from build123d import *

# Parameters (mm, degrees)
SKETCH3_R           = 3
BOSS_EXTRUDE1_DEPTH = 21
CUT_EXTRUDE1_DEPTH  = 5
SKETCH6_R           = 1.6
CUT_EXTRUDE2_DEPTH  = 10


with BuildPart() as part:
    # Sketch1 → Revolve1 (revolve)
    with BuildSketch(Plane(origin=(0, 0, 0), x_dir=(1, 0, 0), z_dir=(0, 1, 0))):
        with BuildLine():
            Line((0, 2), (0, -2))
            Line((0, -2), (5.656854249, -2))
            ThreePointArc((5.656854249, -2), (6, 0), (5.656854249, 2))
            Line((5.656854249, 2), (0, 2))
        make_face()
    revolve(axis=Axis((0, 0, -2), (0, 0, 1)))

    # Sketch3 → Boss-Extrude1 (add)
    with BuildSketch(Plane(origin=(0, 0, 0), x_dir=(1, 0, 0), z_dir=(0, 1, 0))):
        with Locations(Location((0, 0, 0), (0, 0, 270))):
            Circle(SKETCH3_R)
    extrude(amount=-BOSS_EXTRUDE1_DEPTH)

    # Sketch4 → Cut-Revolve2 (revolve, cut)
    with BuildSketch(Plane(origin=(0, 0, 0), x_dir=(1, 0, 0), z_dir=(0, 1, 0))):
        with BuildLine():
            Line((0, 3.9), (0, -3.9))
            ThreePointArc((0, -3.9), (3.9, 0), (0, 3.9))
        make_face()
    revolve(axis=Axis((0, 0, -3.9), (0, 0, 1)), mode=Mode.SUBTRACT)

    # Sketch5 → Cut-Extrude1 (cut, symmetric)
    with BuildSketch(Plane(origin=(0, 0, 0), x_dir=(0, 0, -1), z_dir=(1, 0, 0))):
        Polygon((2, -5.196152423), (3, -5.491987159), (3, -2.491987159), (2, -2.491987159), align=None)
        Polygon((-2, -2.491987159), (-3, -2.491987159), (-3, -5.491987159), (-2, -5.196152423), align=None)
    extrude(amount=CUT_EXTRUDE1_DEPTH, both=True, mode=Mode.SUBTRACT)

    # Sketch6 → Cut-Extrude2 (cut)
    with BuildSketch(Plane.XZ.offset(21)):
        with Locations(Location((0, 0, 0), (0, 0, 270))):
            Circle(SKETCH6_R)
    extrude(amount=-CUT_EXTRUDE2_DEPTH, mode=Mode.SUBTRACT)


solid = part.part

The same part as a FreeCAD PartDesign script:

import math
import FreeCAD as App
import Part
import Sketcher
from FreeCAD import Vector
Q = App.Units.Quantity

doc = App.newDocument("Part")
body = doc.addObject("PartDesign::Body", "Body")

sketch1 = doc.addObject("Sketcher::SketchObject", "Sketch")
body.addObject(sketch1)
sketch1.AttachmentSupport = (doc.XZ_Plane, [""])
sketch1.MapMode = "FlatFace"
sketch1.addGeometry([
    Part.LineSegment(Vector(0, -2, 0), Vector(0, 2, 0)),
    Part.LineSegment(Vector(0, 2, 0), Vector(5.656854, 2, 0)),
    Part.ArcOfCircle(Part.Circle(Vector(0, 0, 0), Vector(0, 0, 1), 6), math.radians(-19.471221), math.radians(19.471221)),
    Part.LineSegment(Vector(5.656854, -2, 0), Vector(0, -2, 0)),
], False)
sketch1.addConstraint([
    Sketcher.Constraint("Coincident", 0, 2, 1, 1),
    Sketcher.Constraint("Coincident", 1, 2, 2, 2),
    Sketcher.Constraint("Coincident", 2, 1, 3, 1),
    Sketcher.Constraint("Coincident", 3, 2, 0, 1),
    Sketcher.Constraint("Vertical", 0),
    Sketcher.Constraint("Horizontal", 1),
    Sketcher.Constraint("Horizontal", 3),
    Sketcher.Constraint("Coincident", 2, 3, -1, 1),
    Sketcher.Constraint("Symmetric", 0, 2, 3, 2, -1, 1),
    Sketcher.Constraint("Radius", 2, Q("6 mm")),
    Sketcher.Constraint("DistanceY", 0, 1, 0, 2, Q("4 mm")),
])
revolution = doc.addObject("PartDesign::Revolution", "Revolution")
body.addObject(revolution)
revolution.Profile = sketch1
revolution.ReferenceAxis = (sketch1, ["V_Axis"])
revolution.Angle = 360

sketch2 = doc.addObject("Sketcher::SketchObject", "Sketch001")
body.addObject(sketch2)
sketch2.AttachmentSupport = (doc.XZ_Plane, [""])
sketch2.MapMode = "FlatFace"
sketch2.addGeometry(Part.Circle(Vector(0, 0, 0), Vector(0, 0, 1), 3), False)
sketch2.addConstraint([
    Sketcher.Constraint("Coincident", 0, 3, -1, 1),
    Sketcher.Constraint("Diameter", 0, Q("6 mm")),
])
pad1 = doc.addObject("PartDesign::Pad", "Pad")
body.addObject(pad1)
pad1.Profile = sketch2
pad1.Length = 21

sketch3 = doc.addObject("Sketcher::SketchObject", "Sketch002")
body.addObject(sketch3)
sketch3.AttachmentSupport = (doc.XZ_Plane, [""])
sketch3.MapMode = "FlatFace"
sketch3.addGeometry([
    Part.LineSegment(Vector(0, -3.9, 0), Vector(0, 3.9, 0)),
    Part.ArcOfCircle(Part.Circle(Vector(0, 0, 0), Vector(0, 0, 1), 3.9), math.radians(-90), math.radians(90)),
], False)
sketch3.addConstraint([
    Sketcher.Constraint("Coincident", 0, 1, 1, 1),
    Sketcher.Constraint("Coincident", 1, 2, 0, 2),
    Sketcher.Constraint("Vertical", 0),
    Sketcher.Constraint("Coincident", 1, 3, -1, 1),
    Sketcher.Constraint("PointOnObject", 0, 1, -2),
    Sketcher.Constraint("Radius", 1, Q("3.9 mm")),
])
groove = doc.addObject("PartDesign::Groove", "Groove")
body.addObject(groove)
groove.Profile = sketch3
groove.ReferenceAxis = (sketch3, ["V_Axis"])
groove.Angle = 360

sketch4 = doc.addObject("Sketcher::SketchObject", "Sketch003")
body.addObject(sketch4)
sketch4.AttachmentSupport = (doc.YZ_Plane, [""])
sketch4.MapMode = "FlatFace"
sketch4.addGeometry([
    Part.LineSegment(Vector(-5.196152, -2, 0), Vector(-5.491987, -3, 0)),
    Part.LineSegment(Vector(-5.491987, -3, 0), Vector(-2.491987, -3, 0)),
    Part.LineSegment(Vector(-2.491987, -3, 0), Vector(-2.491987, -2, 0)),
    Part.LineSegment(Vector(-2.491987, -2, 0), Vector(-5.196152, -2, 0)),
    Part.LineSegment(Vector(-2.491987, 2, 0), Vector(-2.491987, 3, 0)),
    Part.LineSegment(Vector(-2.491987, 3, 0), Vector(-5.491987, 3, 0)),
    Part.LineSegment(Vector(-5.491987, 3, 0), Vector(-5.196152, 2, 0)),
    Part.LineSegment(Vector(-5.196152, 2, 0), Vector(-2.491987, 2, 0)),
], False)
sketch4.addConstraint([
    Sketcher.Constraint("Coincident", 0, 2, 1, 1),
    Sketcher.Constraint("Coincident", 1, 2, 2, 1),
    Sketcher.Constraint("Coincident", 2, 2, 3, 1),
    Sketcher.Constraint("Coincident", 3, 2, 0, 1),
    Sketcher.Constraint("Coincident", 4, 2, 5, 1),
    Sketcher.Constraint("Coincident", 5, 2, 6, 1),
    Sketcher.Constraint("Coincident", 6, 2, 7, 1),
    Sketcher.Constraint("Coincident", 7, 2, 4, 1),
    Sketcher.Constraint("Horizontal", 1),
    Sketcher.Constraint("Vertical", 2),
    Sketcher.Constraint("Horizontal", 3),
    Sketcher.Constraint("Vertical", 4),
    Sketcher.Constraint("Horizontal", 5),
    Sketcher.Constraint("Horizontal", 7),
    Sketcher.Constraint("Symmetric", 1, 2, 4, 2, -1),
    Sketcher.Constraint("Symmetric", 3, 2, 6, 2, -1),
    Sketcher.Constraint("Vertical", 0, 2, 5, 2),
    Sketcher.Constraint("DistanceX", 1, 1, 1, 2, Q("3 mm")),
    Sketcher.Constraint("DistanceY", 2, 1, 2, 2, Q("1 mm")),
    Sketcher.Constraint("DistanceY", 0, 2, -1, 1, Q("3 mm")),
    Sketcher.Constraint("Distance", 0, Q("1.042841 mm")),
    Sketcher.Constraint("DistanceX", 0, 2, -1, 1, Q("5.491987 mm")),
])
pocket1 = doc.addObject("PartDesign::Pocket", "Pocket")
body.addObject(pocket1)
pocket1.Profile = sketch4
pocket1.Length = 10
pocket1.Midplane = True

sketch5 = doc.addObject("Sketcher::SketchObject", "Sketch004")
body.addObject(sketch5)
sketch5.AttachmentSupport = (doc.XZ_Plane, [""])
sketch5.MapMode = "FlatFace"
sketch5.AttachmentOffset = App.Placement(Vector(0, 0, 21), App.Rotation())
sketch5.addGeometry(Part.Circle(Vector(0, 0, 0), Vector(0, 0, 1), 1.6), False)
sketch5.addConstraint([
    Sketcher.Constraint("Coincident", 0, 3, -1, 1),
    Sketcher.Constraint("Diameter", 0, Q("3.2 mm")),
])
pocket2 = doc.addObject("PartDesign::Pocket", "Pocket001")
body.addObject(pocket2)
pocket2.Profile = sketch5
pocket2.Length = 10

doc.recompute()
